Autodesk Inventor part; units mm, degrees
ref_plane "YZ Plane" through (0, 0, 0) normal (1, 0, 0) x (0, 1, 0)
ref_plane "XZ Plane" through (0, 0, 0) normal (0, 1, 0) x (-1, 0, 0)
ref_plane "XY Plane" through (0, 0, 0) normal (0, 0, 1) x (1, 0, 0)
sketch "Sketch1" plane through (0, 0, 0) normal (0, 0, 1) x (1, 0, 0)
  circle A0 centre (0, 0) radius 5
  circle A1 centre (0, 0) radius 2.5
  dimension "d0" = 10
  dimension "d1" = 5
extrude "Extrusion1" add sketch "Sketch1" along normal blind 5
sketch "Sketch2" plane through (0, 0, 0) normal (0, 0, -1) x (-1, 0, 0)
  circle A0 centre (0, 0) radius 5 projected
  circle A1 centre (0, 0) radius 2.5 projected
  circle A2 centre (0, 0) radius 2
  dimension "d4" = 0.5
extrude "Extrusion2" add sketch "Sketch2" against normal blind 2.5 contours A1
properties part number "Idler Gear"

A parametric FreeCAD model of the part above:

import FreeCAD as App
import Part
import Sketcher
from FreeCAD import Vector

doc = App.newDocument("Part")
params = doc.addObject("Spreadsheet::Sheet", "Params")
for row, (alias, value) in enumerate([
    ("sketch1_diameter", "10 mm"),
    ("sketch1_diameter2", "5 mm"),
    ("pad1_length", "5 mm"),
    ("sketch2_diameter", "5 mm"),
    ("sketch2_diameter2", "4 mm"),
    ("pad2_length", "2.5 mm"),
], start=1):
    params.set(f"A{row}", alias)
    params.set(f"B{row}", "=" + value)
    params.setAlias(f"B{row}", alias)

body = doc.addObject("PartDesign::Body", "Body")

# Sketch on XY plane
sketch1 = doc.addObject("Sketcher::SketchObject", "Sketch")
body.addObject(sketch1)
sketch1.AttachmentSupport = (doc.XY_Plane, [""])
sketch1.MapMode = "FlatFace"
sketch1.addGeometry([
    Part.Circle(Vector(0, 0, 0), Vector(0, 0, 1), 5),
    Part.Circle(Vector(0, 0, 0), Vector(0, 0, 1), 2.5),
], False)
sketch1.addConstraint([
    Sketcher.Constraint("Coincident", 0, 3, -1, 1),
    Sketcher.Constraint("Coincident", 1, 3, -1, 1),
    Sketcher.Constraint("Diameter", 0, 10.0),
    Sketcher.Constraint("Diameter", 1, 5.0),
])
sketch1.setExpression("Constraints[2]", "Params.sketch1_diameter")
sketch1.setExpression("Constraints[3]", "Params.sketch1_diameter2")
pad1 = doc.addObject("PartDesign::Pad", "Pad")
body.addObject(pad1)
pad1.Profile = sketch1
pad1.setExpression("Length", "Params.pad1_length")

# Sketch on XY plane
sketch2 = doc.addObject("Sketcher::SketchObject", "Sketch001")
body.addObject(sketch2)
sketch2.AttachmentSupport = (doc.XY_Plane, [""])
sketch2.MapMode = "FlatFace"
sketch2.addGeometry([
    Part.Circle(Vector(0, 0, 0), Vector(0, 0, 1), 2.5),
    Part.Circle(Vector(0, 0, 0), Vector(0, 0, 1), 2),
], False)
sketch2.addConstraint([
    Sketcher.Constraint("Coincident", 0, 3, -1, 1),
    Sketcher.Constraint("Coincident", 1, 3, -1, 1),
    Sketcher.Constraint("Diameter", 0, 5.0),
    Sketcher.Constraint("Diameter", 1, 4.0),
])
sketch2.setExpression("Constraints[2]", "Params.sketch2_diameter")
sketch2.setExpression("Constraints[3]", "Params.sketch2_diameter2")
pad2 = doc.addObject("PartDesign::Pad", "Pad001")
body.addObject(pad2)
pad2.Profile = sketch2
pad2.setExpression("Length", "Params.pad2_length")

doc.recompute()
